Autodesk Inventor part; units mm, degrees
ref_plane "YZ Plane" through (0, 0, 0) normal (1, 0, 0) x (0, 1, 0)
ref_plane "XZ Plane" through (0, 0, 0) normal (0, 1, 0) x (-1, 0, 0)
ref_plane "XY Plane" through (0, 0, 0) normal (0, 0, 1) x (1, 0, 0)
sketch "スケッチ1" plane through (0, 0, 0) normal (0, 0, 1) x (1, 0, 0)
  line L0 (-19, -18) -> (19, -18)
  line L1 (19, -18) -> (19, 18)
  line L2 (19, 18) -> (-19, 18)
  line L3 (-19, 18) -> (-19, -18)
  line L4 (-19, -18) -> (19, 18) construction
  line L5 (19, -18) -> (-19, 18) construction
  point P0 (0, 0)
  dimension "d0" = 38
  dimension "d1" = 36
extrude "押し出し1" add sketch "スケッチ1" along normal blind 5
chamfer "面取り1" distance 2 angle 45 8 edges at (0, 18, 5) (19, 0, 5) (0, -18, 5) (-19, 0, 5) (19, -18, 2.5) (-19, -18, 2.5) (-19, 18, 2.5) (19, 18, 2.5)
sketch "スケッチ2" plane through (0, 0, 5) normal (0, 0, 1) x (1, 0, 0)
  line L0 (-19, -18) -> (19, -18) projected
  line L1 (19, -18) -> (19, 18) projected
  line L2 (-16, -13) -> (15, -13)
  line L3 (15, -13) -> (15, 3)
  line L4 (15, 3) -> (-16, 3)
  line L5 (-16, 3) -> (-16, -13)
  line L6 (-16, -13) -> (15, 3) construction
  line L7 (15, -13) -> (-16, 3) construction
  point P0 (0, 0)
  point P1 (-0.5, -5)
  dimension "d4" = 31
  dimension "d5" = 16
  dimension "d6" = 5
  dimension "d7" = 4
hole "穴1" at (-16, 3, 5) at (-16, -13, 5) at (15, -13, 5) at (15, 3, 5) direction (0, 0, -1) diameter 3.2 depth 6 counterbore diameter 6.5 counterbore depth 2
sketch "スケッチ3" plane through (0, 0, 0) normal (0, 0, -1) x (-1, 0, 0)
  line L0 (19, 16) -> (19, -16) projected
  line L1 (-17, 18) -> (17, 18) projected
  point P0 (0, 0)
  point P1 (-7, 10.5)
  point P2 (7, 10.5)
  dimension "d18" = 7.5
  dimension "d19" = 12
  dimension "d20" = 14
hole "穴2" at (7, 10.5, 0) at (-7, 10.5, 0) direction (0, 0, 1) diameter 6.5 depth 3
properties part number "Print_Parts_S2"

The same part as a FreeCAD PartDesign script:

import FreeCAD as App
import Part
import Sketcher
from FreeCAD import Vector
Q = App.Units.Quantity


def edges_at(feature, points):
    """Names of the edges that pass closest to the given points."""
    edges = feature.Shape.Edges
    near = lambda p: min(range(len(edges)), key=lambda i: edges[i].distToShape(Part.Vertex(*p))[0])
    return sorted({f"Edge{near(p) + 1}" for p in points})


def add_polygon(sketch, points):
    """Adds a closed chain of lines whose ends are joined by coincident constraints."""
    first, n = sketch.GeometryCount, len(points)
    for a, b in zip(points, points[1:] + points[:1]):
        sketch.addGeometry(Part.LineSegment(App.Vector(*a, 0), App.Vector(*b, 0)), False)
    for i in range(n):
        sketch.addConstraint(Sketcher.Constraint("Coincident", first + i, 2, first + (i + 1) % n, 1))

doc = App.newDocument("Part")
body = doc.addObject("PartDesign::Body", "Body")

# Sketch on XY plane
sketch1 = doc.addObject("Sketcher::SketchObject", "Sketch")
body.addObject(sketch1)
sketch1.AttachmentSupport = (doc.XY_Plane, [""])
sketch1.MapMode = "FlatFace"
add_polygon(sketch1, [(-19, 18), (-19, -18), (19, -18), (19, 18)])  # lines 0-3
sketch1.addConstraint(Sketcher.Constraint("Vertical", 0))
sketch1.addConstraint(Sketcher.Constraint("Horizontal", 1))
sketch1.addConstraint(Sketcher.Constraint("Vertical", 2))
sketch1.addConstraint(Sketcher.Constraint("Horizontal", 3))
sketch1.addConstraint(Sketcher.Constraint("Symmetric", 0, 2, 2, 2, -1, 1))
sketch1.addConstraint(Sketcher.Constraint("DistanceX", 1, 1, 1, 2, Q("38 mm")))
sketch1.addConstraint(Sketcher.Constraint("DistanceY", 0, 2, 0, 1, Q("36 mm")))
pad1 = doc.addObject("PartDesign::Pad", "Pad")
body.addObject(pad1)
pad1.Profile = sketch1
pad1.Length = 5
doc.recompute()

chamfer = doc.addObject("PartDesign::Chamfer", "Chamfer")
body.addObject(chamfer)
chamfer.Base = (pad1, edges_at(pad1, [
    (0, 18, 5),
    (19, 0, 5),
    (0, -18, 5),
    (-19, 0, 5),
    (19, -18, 2.5),
    (-19, -18, 2.5),
    (-19, 18, 2.5),
    (19, 18, 2.5),
]))
chamfer.Size = 2

# Sketch on XY plane
sketch2 = doc.addObject("Sketcher::SketchObject", "Sketch001")
body.addObject(sketch2)
sketch2.AttachmentSupport = (doc.XY_Plane, [""])
sketch2.MapMode = "FlatFace"
sketch2.AttachmentOffset = App.Placement(Vector(0, 0, 5), App.Rotation())
sketch2.addGeometry(Part.Circle(Vector(-16, 3, 0), Vector(0, 0, 1), 1.6), False)
sketch2.addGeometry(Part.Circle(Vector(-16, -13, 0), Vector(0, 0, 1), 1.6), False)
sketch2.addGeometry(Part.Circle(Vector(15, -13, 0), Vector(0, 0, 1), 1.6), False)
sketch2.addGeometry(Part.Circle(Vector(15, 3, 0), Vector(0, 0, 1), 1.6), False)
sketch2.addConstraint(Sketcher.Constraint("Equal", 0, 1))
sketch2.addConstraint(Sketcher.Constraint("Equal", 1, 2))
sketch2.addConstraint(Sketcher.Constraint("Equal", 2, 3))
sketch2.addConstraint(Sketcher.Constraint("Horizontal", 1, 3, 2, 3))
sketch2.addConstraint(Sketcher.Constraint("Horizontal", 0, 3, 3, 3))
sketch2.addConstraint(Sketcher.Constraint("Vertical", 0, 3, 1, 3))
sketch2.addConstraint(Sketcher.Constraint("Vertical", 2, 3, 3, 3))
sketch2.addConstraint(Sketcher.Constraint("Diameter", 0, Q("3.2 mm")))
sketch2.addConstraint(Sketcher.Constraint("DistanceX", 0, 3, -1, 1, Q("16 mm")))
sketch2.addConstraint(Sketcher.Constraint("DistanceY", -1, 1, 0, 3, Q("3 mm")))
sketch2.addConstraint(Sketcher.Constraint("DistanceY", 1, 3, -1, 1, Q("13 mm")))
sketch2.addConstraint(Sketcher.Constraint("DistanceX", -1, 1, 2, 3, Q("15 mm")))
doc.recompute()
hole = doc.addObject("PartDesign::Hole", "Hole")
body.addObject(hole)
hole.Profile = sketch2
hole.ThreadType = "None"
hole.Diameter = 3.2
hole.DepthType = "Dimension"
hole.Depth = 6
hole.DrillPoint = "Flat"
hole.HoleCutType = "Counterbore"
hole.HoleCutDiameter = 6.5
hole.HoleCutDepth = 2

# Sketch on XY plane
sketch3 = doc.addObject("Sketcher::SketchObject", "Sketch002")
body.addObject(sketch3)
sketch3.AttachmentSupport = (doc.XY_Plane, [""])
sketch3.MapMode = "FlatFace"
sketch3.addGeometry(Part.Circle(Vector(7, 10.5, 0), Vector(0, 0, 1), 3.2), False)
sketch3.addGeometry(Part.Circle(Vector(-7, 10.5, 0), Vector(0, 0, 1), 3.2), False)
sketch3.addConstraint(Sketcher.Constraint("Equal", 0, 1))
sketch3.addConstraint(Sketcher.Constraint("Symmetric", 0, 3, 1, 3, -2))
sketch3.addConstraint(Sketcher.Constraint("Diameter", 0, Q("6.5 mm")))
sketch3.addConstraint(Sketcher.Constraint("DistanceX", -1, 1, 0, 3, Q("7 mm")))
sketch3.addConstraint(Sketcher.Constraint("DistanceY", -1, 1, 0, 3, Q("10.5 mm")))
doc.recompute()
hole2 = doc.addObject("PartDesign::Hole", "Hole001")
body.addObject(hole2)
hole2.Profile = sketch3
hole2.ThreadType = "None"
hole2.Diameter = 6.5
hole2.DepthType = "Dimension"
hole2.Depth = 3
hole2.DrillPoint = "Flat"
hole2.Reversed = True

doc.recompute()
